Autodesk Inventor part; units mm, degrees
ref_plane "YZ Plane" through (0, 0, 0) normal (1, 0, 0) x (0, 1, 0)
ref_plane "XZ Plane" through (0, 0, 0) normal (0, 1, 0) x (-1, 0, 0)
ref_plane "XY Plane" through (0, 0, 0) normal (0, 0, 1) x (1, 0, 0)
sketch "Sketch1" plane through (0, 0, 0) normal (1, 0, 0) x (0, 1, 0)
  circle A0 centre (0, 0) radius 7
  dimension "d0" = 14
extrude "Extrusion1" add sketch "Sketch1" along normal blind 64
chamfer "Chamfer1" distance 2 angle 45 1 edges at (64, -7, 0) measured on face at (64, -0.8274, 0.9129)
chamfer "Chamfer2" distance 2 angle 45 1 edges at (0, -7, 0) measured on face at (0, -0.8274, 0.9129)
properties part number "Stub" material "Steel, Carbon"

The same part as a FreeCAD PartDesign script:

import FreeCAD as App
import Part
import Sketcher

V = App.Vector


def edges_at(feature, points):
    """Names of the edges that pass closest to the given points."""
    edges = feature.Shape.Edges
    near = lambda p: min(range(len(edges)), key=lambda i: edges[i].distToShape(Part.Vertex(*p))[0])
    return sorted({f"Edge{near(p) + 1}" for p in points})

doc = App.newDocument("Part")
params = doc.addObject("Spreadsheet::Sheet", "Params")
for row, (alias, value) in enumerate([
    ("sketch1_diameter", "14 mm"),
    ("pad1_length", "64 mm"),
    ("chamfer_size", "2 mm"),
    ("chamfer2_size", "2 mm"),
], start=1):
    params.set(f"A{row}", alias)
    params.set(f"B{row}", "=" + value)
    params.setAlias(f"B{row}", alias)

body = doc.addObject("PartDesign::Body", "Body")

sketch1 = doc.addObject("Sketcher::SketchObject", "Sketch")
body.addObject(sketch1)
sketch1.AttachmentSupport = (doc.YZ_Plane, [""])
sketch1.MapMode = "FlatFace"
sketch1.addGeometry(Part.Circle(V(0, 0, 0), V(0, 0, 1), 7), False)
sketch1.addConstraint([
    Sketcher.Constraint("Coincident", 0, 3, -1, 1),
    Sketcher.Constraint("Diameter", 0, 14.0),
])
sketch1.setExpression("Constraints[1]", "Params.sketch1_diameter")
pad1 = doc.addObject("PartDesign::Pad", "Pad")
body.addObject(pad1)
pad1.Profile = sketch1
pad1.setExpression("Length", "Params.pad1_length")
doc.recompute()

chamfer = doc.addObject("PartDesign::Chamfer", "Chamfer")
body.addObject(chamfer)
chamfer.Base = (pad1, edges_at(pad1, [(64, -7, 0)]))
chamfer.setExpression("Size", "Params.chamfer_size")
doc.recompute()

chamfer2 = doc.addObject("PartDesign::Chamfer", "Chamfer001")
body.addObject(chamfer2)
chamfer2.Base = (chamfer, edges_at(chamfer, [(0, -7, 0)]))
chamfer2.setExpression("Size", "Params.chamfer2_size")

doc.recompute()
